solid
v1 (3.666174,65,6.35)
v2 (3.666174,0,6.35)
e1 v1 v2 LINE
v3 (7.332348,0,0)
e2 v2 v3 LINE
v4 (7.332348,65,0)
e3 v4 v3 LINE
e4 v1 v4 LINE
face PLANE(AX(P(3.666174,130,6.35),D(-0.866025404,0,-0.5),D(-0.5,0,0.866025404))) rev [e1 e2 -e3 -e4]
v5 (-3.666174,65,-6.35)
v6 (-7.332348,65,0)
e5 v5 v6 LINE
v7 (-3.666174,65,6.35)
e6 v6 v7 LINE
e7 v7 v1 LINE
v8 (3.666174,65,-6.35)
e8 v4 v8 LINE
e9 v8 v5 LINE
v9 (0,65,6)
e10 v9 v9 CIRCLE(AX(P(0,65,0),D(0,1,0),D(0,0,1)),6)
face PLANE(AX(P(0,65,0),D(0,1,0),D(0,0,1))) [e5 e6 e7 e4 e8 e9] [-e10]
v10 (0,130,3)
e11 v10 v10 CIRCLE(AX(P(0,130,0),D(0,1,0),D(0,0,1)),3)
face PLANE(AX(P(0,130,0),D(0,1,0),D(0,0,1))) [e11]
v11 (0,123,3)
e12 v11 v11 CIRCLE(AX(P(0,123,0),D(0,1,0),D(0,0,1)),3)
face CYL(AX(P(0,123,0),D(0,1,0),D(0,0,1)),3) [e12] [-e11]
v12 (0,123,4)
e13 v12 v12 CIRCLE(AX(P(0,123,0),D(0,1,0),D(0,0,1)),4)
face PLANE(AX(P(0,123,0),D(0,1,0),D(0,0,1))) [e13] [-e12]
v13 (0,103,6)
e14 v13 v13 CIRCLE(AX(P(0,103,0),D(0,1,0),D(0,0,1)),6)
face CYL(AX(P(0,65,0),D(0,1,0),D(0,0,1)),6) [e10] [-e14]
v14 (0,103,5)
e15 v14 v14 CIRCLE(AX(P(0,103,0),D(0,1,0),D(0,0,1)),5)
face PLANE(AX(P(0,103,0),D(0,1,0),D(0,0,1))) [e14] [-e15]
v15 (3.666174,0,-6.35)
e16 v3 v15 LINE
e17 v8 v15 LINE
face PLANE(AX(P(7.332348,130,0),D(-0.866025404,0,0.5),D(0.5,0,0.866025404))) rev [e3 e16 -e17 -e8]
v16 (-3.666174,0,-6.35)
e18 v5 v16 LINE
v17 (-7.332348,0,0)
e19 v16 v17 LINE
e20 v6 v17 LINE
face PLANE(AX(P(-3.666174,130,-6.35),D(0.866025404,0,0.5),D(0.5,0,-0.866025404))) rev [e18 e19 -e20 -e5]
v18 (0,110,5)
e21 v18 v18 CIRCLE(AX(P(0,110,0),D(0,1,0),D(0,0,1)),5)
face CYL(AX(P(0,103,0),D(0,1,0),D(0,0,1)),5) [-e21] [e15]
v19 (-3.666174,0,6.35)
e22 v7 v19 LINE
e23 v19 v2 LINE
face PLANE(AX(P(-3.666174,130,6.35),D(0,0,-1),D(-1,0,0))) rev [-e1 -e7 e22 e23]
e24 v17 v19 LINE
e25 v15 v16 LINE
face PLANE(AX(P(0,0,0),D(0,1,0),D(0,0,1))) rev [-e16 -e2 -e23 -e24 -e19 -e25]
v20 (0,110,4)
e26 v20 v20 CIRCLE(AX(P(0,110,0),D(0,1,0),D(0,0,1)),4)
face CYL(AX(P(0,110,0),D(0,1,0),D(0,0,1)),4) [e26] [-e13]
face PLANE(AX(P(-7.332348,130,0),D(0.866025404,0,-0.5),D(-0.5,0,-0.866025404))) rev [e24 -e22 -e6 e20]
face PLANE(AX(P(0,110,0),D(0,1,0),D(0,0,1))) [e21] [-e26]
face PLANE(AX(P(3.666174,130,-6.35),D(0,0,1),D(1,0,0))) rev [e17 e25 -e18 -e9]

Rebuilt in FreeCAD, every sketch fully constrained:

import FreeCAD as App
import Part
import Sketcher

V = App.Vector
Q = App.Units.Quantity

doc = App.newDocument("Part")
params = doc.addObject("Spreadsheet::Sheet", "Params")
for row, (alias, value) in enumerate([
    ("pad1_length", "130 mm"),
    ("sketch2_diameter", "12 mm"),
    ("pocket1_length", "65 mm"),
    ("sketch3_diameter", "12 mm"),
    ("sketch3_diameter2", "10 mm"),
    ("pocket2_length", "27 mm"),
    ("sketch4_diameter", "10 mm"),
    ("sketch4_diameter2", "8 mm"),
    ("pocket3_length", "20 mm"),
    ("sketch5_diameter", "8 mm"),
    ("sketch5_diameter2", "6 mm"),
    ("pocket4_length", "7 mm"),
], start=1):
    params.set(f"A{row}", alias)
    params.set(f"B{row}", "=" + value)
    params.setAlias(f"B{row}", alias)

body = doc.addObject("PartDesign::Body", "Body")

sketch1 = doc.addObject("Sketcher::SketchObject", "Sketch")
body.addObject(sketch1)
sketch1.AttachmentSupport = (doc.XZ_Plane, [""])
sketch1.MapMode = "FlatFace"
sketch1.addGeometry(Part.LineSegment(V(7.332348, 0, 0), V(3.666174, -6.35, 0)), False)
sketch1.addGeometry(Part.LineSegment(V(3.666174, -6.35, 0), V(-3.666174, -6.35, 0)), False)
sketch1.addGeometry(Part.LineSegment(V(-3.666174, -6.35, 0), V(-7.332348, 0, 0)), False)
sketch1.addGeometry(Part.LineSegment(V(-7.332348, 0, 0), V(-3.666174, 6.35, 0)), False)
sketch1.addGeometry(Part.LineSegment(V(-3.666174, 6.35, 0), V(3.666174, 6.35, 0)), False)
sketch1.addGeometry(Part.LineSegment(V(3.666174, 6.35, 0), V(7.332348, 0, 0)), False)
sketch1.addConstraint(Sketcher.Constraint("Coincident", 0, 2, 1, 1))
sketch1.addConstraint(Sketcher.Constraint("Coincident", 1, 2, 2, 1))
sketch1.addConstraint(Sketcher.Constraint("Coincident", 2, 2, 3, 1))
sketch1.addConstraint(Sketcher.Constraint("Coincident", 3, 2, 4, 1))
sketch1.addConstraint(Sketcher.Constraint("Coincident", 4, 2, 5, 1))
sketch1.addConstraint(Sketcher.Constraint("Coincident", 5, 2, 0, 1))
sketch1.addConstraint(Sketcher.Constraint("Horizontal", 1))
sketch1.addConstraint(Sketcher.Constraint("Horizontal", 4))
sketch1.addConstraint(Sketcher.Constraint("Symmetric", 0, 2, 3, 2, -1, 1))
sketch1.addConstraint(Sketcher.Constraint("Symmetric", 2, 2, 5, 2, -1, 1))
sketch1.addConstraint(Sketcher.Constraint("PointOnObject", 2, 2, -1))
sketch1.addConstraint(Sketcher.Constraint("Parallel", 2, 5))
sketch1.addConstraint(Sketcher.Constraint("Vertical", 1, 2, 3, 2))
sketch1.addConstraint(Sketcher.Constraint("Angle", 0, Q("-120 deg")))
sketch1.addConstraint(Sketcher.Constraint("DistanceY", 1, 2, 3, 2, 12.7))
sketch1.addConstraint(Sketcher.Constraint("DistanceX", 1, 2, 1, 1, 7.332348))
pad1 = doc.addObject("PartDesign::Pad", "Pad")
body.addObject(pad1)
pad1.Profile = sketch1
pad1.setExpression("Length", "Params.pad1_length")
pad1.Reversed = True

sketch2 = doc.addObject("Sketcher::SketchObject", "Sketch001")
body.addObject(sketch2)
sketch2.AttachmentSupport = (doc.XZ_Plane, [""])
sketch2.MapMode = "FlatFace"
sketch2.AttachmentOffset = App.Placement(V(0, 0, -130), App.Rotation())
sketch2.addGeometry(Part.Circle(V(0, 0, 0), V(0, 0, 1), 7.332348), False)
sketch2.addGeometry(Part.Circle(V(0, 0, 0), V(0, 0, 1), 6), False)
sketch2.addConstraint(Sketcher.Constraint("Coincident", 0, 3, -1, 1))
sketch2.addConstraint(Sketcher.Constraint("Coincident", 1, 3, -1, 1))
sketch2.addConstraint(Sketcher.Constraint("Diameter", 1, 12.0))
sketch2.addConstraint(Sketcher.Constraint("Diameter", 0, 14.664697))
sketch2.setExpression("Constraints[2]", "Params.sketch2_diameter")
pocket1 = doc.addObject("PartDesign::Pocket", "Pocket")
body.addObject(pocket1)
pocket1.Profile = sketch2
pocket1.setExpression("Length", "Params.pocket1_length")
pocket1.Reversed = True

sketch3 = doc.addObject("Sketcher::SketchObject", "Sketch002")
body.addObject(sketch3)
sketch3.AttachmentSupport = (doc.XZ_Plane, [""])
sketch3.MapMode = "FlatFace"
sketch3.AttachmentOffset = App.Placement(V(0, 0, -130), App.Rotation())
sketch3.addGeometry(Part.Circle(V(0, 0, 0), V(0, 0, 1), 6), False)
sketch3.addGeometry(Part.Circle(V(0, 0, 0), V(0, 0, 1), 5), False)
sketch3.addConstraint(Sketcher.Constraint("Coincident", 0, 3, -1, 1))
sketch3.addConstraint(Sketcher.Constraint("Coincident", 1, 3, -1, 1))
sketch3.addConstraint(Sketcher.Constraint("Diameter", 0, 12.0))
sketch3.addConstraint(Sketcher.Constraint("Diameter", 1, 10.0))
sketch3.setExpression("Constraints[2]", "Params.sketch3_diameter")
sketch3.setExpression("Constraints[3]", "Params.sketch3_diameter2")
pocket2 = doc.addObject("PartDesign::Pocket", "Pocket001")
body.addObject(pocket2)
pocket2.Profile = sketch3
pocket2.setExpression("Length", "Params.pocket2_length")
pocket2.Reversed = True

sketch4 = doc.addObject("Sketcher::SketchObject", "Sketch003")
body.addObject(sketch4)
sketch4.AttachmentSupport = (doc.XZ_Plane, [""])
sketch4.MapMode = "FlatFace"
sketch4.AttachmentOffset = App.Placement(V(0, 0, -130), App.Rotation())
sketch4.addGeometry(Part.Circle(V(0, 0, 0), V(0, 0, 1), 5), False)
sketch4.addGeometry(Part.Circle(V(0, 0, 0), V(0, 0, 1), 4), False)
sketch4.addConstraint(Sketcher.Constraint("Coincident", 0, 3, -1, 1))
sketch4.addConstraint(Sketcher.Constraint("Coincident", 1, 3, -1, 1))
sketch4.addConstraint(Sketcher.Constraint("Diameter", 0, 10.0))
sketch4.addConstraint(Sketcher.Constraint("Diameter", 1, 8.0))
sketch4.setExpression("Constraints[2]", "Params.sketch4_diameter")
sketch4.setExpression("Constraints[3]", "Params.sketch4_diameter2")
pocket3 = doc.addObject("PartDesign::Pocket", "Pocket002")
body.addObject(pocket3)
pocket3.Profile = sketch4
pocket3.setExpression("Length", "Params.pocket3_length")
pocket3.Reversed = True

sketch5 = doc.addObject("Sketcher::SketchObject", "Sketch004")
body.addObject(sketch5)
sketch5.AttachmentSupport = (doc.XZ_Plane, [""])
sketch5.MapMode = "FlatFace"
sketch5.AttachmentOffset = App.Placement(V(0, 0, -130), App.Rotation())
sketch5.addGeometry(Part.Circle(V(0, 0, 0), V(0, 0, 1), 4), False)
sketch5.addGeometry(Part.Circle(V(0, 0, 0), V(0, 0, 1), 3), False)
sketch5.addConstraint(Sketcher.Constraint("Coincident", 0, 3, -1, 1))
sketch5.addConstraint(Sketcher.Constraint("Coincident", 1, 3, -1, 1))
sketch5.addConstraint(Sketcher.Constraint("Diameter", 0, 8.0))
sketch5.addConstraint(Sketcher.Constraint("Diameter", 1, 6.0))
sketch5.setExpression("Constraints[2]", "Params.sketch5_diameter")
sketch5.setExpression("Constraints[3]", "Params.sketch5_diameter2")
pocket4 = doc.addObject("PartDesign::Pocket", "Pocket003")
body.addObject(pocket4)
pocket4.Profile = sketch5
pocket4.setExpression("Length", "Params.pocket4_length")
pocket4.Reversed = True

doc.recompute()
